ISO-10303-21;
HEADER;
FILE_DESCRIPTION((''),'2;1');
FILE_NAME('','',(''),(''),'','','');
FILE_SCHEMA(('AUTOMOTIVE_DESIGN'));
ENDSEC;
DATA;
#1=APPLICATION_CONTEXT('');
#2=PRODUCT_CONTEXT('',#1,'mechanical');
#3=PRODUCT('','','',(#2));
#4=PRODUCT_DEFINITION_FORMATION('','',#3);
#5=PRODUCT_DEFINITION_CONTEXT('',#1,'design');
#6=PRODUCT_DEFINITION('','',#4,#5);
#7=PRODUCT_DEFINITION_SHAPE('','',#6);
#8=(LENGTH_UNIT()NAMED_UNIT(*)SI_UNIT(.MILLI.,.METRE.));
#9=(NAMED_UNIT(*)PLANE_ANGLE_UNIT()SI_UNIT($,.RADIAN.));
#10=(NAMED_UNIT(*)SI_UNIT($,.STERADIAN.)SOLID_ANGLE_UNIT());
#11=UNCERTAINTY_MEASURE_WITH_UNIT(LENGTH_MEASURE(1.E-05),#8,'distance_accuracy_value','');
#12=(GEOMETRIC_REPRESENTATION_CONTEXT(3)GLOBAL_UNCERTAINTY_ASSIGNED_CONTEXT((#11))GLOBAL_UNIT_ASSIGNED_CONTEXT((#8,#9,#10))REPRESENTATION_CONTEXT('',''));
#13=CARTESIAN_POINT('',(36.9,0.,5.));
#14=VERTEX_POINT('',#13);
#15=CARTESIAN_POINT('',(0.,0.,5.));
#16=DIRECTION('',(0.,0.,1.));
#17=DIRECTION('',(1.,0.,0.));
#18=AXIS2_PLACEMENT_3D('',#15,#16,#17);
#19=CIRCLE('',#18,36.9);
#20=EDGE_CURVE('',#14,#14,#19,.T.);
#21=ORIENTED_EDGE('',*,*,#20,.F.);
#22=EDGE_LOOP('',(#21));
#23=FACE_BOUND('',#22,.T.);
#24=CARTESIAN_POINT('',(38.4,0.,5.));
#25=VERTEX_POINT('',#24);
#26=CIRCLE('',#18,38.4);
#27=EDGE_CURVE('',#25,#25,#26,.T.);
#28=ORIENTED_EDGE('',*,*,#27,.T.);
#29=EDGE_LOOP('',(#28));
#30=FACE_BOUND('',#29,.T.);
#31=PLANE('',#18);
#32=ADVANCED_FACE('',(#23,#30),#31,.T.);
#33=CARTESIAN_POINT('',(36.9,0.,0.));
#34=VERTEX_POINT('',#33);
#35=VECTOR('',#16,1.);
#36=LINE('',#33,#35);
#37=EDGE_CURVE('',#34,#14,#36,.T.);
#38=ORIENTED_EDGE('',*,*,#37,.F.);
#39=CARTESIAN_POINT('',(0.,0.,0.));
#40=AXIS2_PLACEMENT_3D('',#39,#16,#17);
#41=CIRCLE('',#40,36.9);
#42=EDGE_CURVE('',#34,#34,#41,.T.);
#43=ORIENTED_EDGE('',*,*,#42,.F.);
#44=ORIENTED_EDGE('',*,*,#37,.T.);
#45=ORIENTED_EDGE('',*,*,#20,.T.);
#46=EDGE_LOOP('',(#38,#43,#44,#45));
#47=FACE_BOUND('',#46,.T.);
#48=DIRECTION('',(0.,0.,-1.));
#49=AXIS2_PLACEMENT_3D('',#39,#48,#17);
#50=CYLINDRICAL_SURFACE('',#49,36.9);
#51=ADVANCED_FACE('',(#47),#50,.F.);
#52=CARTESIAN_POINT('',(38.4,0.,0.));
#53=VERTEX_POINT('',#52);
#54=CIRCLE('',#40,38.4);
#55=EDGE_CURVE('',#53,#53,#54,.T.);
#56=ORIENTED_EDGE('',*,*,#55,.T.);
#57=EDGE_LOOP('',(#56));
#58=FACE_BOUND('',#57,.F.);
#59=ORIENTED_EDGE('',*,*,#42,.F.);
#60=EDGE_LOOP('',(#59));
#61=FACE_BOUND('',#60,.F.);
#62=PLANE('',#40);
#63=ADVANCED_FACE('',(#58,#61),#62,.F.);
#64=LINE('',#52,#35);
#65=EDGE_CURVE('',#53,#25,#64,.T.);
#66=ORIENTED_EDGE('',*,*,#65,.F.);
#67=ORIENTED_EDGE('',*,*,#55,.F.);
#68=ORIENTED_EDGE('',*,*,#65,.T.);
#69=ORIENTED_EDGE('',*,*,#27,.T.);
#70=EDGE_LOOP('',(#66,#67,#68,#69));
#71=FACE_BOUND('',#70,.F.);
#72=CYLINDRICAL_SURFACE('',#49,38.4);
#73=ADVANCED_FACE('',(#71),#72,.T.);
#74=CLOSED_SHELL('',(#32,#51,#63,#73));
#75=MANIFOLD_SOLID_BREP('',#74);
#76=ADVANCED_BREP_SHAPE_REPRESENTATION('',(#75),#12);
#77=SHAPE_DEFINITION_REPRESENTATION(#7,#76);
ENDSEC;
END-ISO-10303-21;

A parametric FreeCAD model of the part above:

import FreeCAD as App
import Part
import Sketcher

V = App.Vector

doc = App.newDocument("Part")
body = doc.addObject("PartDesign::Body", "Body")

# Sketch on XY plane
sketch1 = body.newObject("Sketcher::SketchObject", "Sketch")
sketch1.AttachmentSupport = (doc.getObject("XY_Plane"), [""])
sketch1.MapMode = "FlatFace"
sketch1.addGeometry([
    Part.Circle(V(0, 0, 0), V(0, 0, 1), 38.4),
    Part.Circle(V(0, 0, 0), V(0, 0, 1), 36.9),
], False)
sketch1.addConstraint([
    Sketcher.Constraint("Coincident", 0, 3, -1, 1),
    Sketcher.Constraint("Coincident", 1, 3, -1, 1),
    Sketcher.Constraint("Diameter", 0, 76.8),
    Sketcher.Constraint("Diameter", 1, 73.8),
])
pad1 = body.newObject("PartDesign::Pad", "Pad")
pad1.Profile = sketch1
pad1.Length = 5

doc.recompute()
